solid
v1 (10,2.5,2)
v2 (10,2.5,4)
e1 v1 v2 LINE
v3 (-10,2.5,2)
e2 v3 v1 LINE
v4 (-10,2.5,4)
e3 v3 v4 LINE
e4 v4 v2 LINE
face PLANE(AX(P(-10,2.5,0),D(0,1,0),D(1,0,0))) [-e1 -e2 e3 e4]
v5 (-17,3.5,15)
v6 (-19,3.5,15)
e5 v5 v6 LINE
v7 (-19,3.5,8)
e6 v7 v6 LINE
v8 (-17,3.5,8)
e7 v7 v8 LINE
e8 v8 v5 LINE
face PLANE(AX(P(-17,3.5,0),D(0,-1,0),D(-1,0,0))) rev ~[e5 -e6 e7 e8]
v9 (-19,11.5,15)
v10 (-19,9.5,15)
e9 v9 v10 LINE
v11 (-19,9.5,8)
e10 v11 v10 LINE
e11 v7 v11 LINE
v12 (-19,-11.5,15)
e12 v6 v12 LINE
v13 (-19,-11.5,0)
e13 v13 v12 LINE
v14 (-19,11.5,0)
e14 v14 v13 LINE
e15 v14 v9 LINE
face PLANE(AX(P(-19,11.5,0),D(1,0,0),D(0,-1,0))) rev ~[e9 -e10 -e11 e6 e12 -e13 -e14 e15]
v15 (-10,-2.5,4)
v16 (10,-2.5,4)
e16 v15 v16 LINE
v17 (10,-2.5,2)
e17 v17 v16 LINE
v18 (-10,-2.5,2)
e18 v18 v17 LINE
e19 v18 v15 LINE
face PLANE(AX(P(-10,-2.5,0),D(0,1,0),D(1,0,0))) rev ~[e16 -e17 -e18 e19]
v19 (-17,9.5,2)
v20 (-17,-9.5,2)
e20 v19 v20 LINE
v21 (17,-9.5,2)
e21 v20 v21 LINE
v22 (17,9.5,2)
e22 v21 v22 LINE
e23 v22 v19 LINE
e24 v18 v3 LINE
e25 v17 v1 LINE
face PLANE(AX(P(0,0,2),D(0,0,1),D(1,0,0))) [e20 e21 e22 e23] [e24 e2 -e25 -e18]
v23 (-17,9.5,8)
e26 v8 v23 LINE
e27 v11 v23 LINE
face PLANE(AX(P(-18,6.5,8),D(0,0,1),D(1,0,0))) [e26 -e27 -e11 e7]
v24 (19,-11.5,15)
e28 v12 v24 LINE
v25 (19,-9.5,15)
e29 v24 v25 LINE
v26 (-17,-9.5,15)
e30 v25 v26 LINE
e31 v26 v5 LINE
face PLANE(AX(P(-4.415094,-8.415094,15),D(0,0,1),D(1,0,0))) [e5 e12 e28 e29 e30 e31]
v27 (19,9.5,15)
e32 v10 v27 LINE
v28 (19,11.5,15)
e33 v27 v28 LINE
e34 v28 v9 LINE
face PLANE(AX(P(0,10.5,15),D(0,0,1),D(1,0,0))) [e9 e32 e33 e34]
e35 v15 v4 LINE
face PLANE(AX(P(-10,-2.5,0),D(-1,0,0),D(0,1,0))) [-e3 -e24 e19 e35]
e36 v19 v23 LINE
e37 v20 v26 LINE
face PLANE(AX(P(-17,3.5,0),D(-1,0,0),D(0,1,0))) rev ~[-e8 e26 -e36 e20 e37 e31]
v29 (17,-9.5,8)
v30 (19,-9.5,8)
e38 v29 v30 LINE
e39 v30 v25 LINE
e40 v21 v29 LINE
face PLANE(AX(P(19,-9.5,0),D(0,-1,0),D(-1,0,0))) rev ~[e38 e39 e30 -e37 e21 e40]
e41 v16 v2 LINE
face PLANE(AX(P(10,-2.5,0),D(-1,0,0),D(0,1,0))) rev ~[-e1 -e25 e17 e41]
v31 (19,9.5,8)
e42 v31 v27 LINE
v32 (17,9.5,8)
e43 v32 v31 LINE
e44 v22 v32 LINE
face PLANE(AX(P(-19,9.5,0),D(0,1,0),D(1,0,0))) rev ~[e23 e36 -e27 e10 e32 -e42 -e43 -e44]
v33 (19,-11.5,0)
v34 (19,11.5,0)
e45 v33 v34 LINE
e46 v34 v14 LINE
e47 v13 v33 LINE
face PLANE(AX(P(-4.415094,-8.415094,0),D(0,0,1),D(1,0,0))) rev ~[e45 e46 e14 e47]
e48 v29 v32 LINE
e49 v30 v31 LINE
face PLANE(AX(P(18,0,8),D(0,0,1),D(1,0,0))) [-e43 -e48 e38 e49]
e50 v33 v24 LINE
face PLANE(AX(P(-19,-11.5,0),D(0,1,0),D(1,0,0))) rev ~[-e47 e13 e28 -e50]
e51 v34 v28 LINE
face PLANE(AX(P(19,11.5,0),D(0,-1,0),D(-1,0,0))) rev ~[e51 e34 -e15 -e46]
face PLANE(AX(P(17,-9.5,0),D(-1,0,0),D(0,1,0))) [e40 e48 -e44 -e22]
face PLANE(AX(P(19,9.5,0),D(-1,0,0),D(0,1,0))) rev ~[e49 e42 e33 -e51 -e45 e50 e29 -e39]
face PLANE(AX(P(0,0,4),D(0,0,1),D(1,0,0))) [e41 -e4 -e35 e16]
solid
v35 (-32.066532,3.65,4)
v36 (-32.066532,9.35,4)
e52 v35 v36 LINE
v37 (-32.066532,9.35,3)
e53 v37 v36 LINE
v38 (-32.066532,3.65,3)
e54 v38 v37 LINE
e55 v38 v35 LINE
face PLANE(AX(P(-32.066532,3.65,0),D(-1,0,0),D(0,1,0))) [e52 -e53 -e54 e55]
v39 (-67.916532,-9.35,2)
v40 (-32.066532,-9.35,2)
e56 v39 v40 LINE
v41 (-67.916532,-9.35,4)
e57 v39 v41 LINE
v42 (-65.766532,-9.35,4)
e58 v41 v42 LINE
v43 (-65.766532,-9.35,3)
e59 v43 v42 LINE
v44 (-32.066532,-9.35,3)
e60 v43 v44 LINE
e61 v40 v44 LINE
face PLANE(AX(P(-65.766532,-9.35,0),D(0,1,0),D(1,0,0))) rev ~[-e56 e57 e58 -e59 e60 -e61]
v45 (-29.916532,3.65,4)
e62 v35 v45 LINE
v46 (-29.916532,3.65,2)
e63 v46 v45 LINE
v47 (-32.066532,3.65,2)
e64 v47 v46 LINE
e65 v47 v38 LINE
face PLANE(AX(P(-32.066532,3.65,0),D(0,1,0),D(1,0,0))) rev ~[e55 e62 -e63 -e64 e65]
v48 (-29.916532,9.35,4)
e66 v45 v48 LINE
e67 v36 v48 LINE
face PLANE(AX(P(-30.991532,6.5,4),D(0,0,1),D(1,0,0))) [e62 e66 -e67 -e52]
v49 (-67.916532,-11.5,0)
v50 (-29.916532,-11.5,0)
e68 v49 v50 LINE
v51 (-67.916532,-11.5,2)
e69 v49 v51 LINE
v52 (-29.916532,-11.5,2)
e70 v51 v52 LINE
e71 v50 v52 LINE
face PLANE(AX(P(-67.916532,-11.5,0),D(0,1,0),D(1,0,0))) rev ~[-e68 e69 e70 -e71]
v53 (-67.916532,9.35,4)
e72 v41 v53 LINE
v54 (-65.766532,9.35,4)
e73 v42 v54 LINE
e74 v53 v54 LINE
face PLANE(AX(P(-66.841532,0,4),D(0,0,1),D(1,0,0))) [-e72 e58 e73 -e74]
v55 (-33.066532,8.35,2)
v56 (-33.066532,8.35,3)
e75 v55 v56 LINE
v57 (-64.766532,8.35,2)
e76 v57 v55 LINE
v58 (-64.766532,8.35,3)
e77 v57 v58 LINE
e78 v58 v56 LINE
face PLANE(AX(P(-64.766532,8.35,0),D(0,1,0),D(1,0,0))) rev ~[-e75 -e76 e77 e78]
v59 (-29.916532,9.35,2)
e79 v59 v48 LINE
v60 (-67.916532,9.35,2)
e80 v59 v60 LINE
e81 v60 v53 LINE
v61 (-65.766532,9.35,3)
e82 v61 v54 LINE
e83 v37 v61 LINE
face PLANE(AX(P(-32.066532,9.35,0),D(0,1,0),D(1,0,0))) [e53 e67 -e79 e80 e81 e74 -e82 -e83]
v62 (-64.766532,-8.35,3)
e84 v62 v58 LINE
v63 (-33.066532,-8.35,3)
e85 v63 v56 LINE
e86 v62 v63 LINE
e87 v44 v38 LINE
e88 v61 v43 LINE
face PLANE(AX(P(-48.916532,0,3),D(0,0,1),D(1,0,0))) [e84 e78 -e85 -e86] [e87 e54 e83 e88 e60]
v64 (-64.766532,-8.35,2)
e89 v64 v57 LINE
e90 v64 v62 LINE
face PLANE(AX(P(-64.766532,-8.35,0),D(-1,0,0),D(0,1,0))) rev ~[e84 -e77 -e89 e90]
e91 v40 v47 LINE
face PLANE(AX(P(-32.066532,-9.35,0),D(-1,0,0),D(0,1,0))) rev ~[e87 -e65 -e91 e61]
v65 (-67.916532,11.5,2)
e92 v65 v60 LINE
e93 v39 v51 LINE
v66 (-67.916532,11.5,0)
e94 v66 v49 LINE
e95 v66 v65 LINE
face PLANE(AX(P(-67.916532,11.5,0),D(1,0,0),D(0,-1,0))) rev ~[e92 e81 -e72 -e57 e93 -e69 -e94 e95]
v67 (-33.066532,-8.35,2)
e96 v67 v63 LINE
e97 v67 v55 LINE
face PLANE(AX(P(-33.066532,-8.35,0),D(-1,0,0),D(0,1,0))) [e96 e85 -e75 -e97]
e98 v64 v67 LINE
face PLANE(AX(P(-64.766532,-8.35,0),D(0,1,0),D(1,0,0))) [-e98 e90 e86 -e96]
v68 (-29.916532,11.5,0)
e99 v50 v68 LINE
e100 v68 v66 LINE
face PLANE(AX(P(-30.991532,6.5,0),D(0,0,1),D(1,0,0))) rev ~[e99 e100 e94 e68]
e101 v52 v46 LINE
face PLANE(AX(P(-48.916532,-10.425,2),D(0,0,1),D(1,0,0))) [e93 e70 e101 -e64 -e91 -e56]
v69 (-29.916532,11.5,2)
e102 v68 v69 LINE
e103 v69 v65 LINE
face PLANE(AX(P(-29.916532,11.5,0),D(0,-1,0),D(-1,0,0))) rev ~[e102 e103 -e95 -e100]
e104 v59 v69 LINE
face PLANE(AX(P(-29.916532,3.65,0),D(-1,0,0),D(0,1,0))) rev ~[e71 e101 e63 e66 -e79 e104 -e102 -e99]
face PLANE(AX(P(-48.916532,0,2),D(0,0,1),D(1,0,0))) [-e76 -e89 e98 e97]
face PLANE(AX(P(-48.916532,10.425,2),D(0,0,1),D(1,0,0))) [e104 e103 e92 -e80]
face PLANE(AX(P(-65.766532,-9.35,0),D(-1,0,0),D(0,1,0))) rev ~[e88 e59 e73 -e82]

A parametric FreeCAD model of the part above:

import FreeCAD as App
import Part
import Sketcher

V = App.Vector
Q = App.Units.Quantity


def add_polygon(sketch, points):
    """Adds a closed chain of lines whose ends are joined by coincident constraints."""
    first, n = sketch.GeometryCount, len(points)
    for a, b in zip(points, points[1:] + points[:1]):
        sketch.addGeometry(Part.LineSegment(App.Vector(*a, 0), App.Vector(*b, 0)), False)
    for i in range(n):
        sketch.addConstraint(Sketcher.Constraint("Coincident", first + i, 2, first + (i + 1) % n, 1))

doc = App.newDocument("Part")
body = doc.addObject("PartDesign::Body", "Body")

# Sketch on XY plane
sketch1 = doc.addObject("Sketcher::SketchObject", "Sketch")
body.addObject(sketch1)
sketch1.AttachmentSupport = (doc.XY_Plane, [""])
sketch1.MapMode = "FlatFace"
add_polygon(sketch1, [(-17, -10), (17, -10), (17, 10), (-17, 10)])  # lines 0-3
add_polygon(sketch1, [(10, -2), (-10, -2), (-10, 2), (10, 2)])  # lines 4-7
sketch1.addConstraint([
    Sketcher.Constraint("Horizontal", 0),
    Sketcher.Constraint("Vertical", 1),
    Sketcher.Constraint("Horizontal", 2),
    Sketcher.Constraint("Vertical", 3),
    Sketcher.Constraint("Horizontal", 4),
    Sketcher.Constraint("Vertical", 5),
    Sketcher.Constraint("Horizontal", 6),
    Sketcher.Constraint("Vertical", 7),
    Sketcher.Constraint("Symmetric", 0, 2, 2, 2, -1, 1),
    Sketcher.Constraint("Symmetric", 4, 2, 6, 2, -1, 1),
    Sketcher.Constraint("DistanceX", 0, 1, 0, 2, Q("34 mm")),
    Sketcher.Constraint("DistanceX", 4, 2, 4, 1, Q("20 mm")),
    Sketcher.Constraint("DistanceY", 1, 1, 1, 2, Q("19 mm")),
    Sketcher.Constraint("DistanceY", 5, 1, 5, 2, Q("5 mm")),
])
pad1 = doc.addObject("PartDesign::Pad", "Pad")
body.addObject(pad1)
pad1.Profile = sketch1
pad1.Length = 2

# Sketch on XY plane
sketch2 = doc.addObject("Sketcher::SketchObject", "Sketch001")
body.addObject(sketch2)
sketch2.AttachmentSupport = (doc.XY_Plane, [""])
sketch2.MapMode = "FlatFace"
add_polygon(sketch2, [(-10, 2), (-10, -2), (10, -2), (10, 2)])  # lines 0-3
sketch2.addConstraint([
    Sketcher.Constraint("Vertical", 0),
    Sketcher.Constraint("Horizontal", 1),
    Sketcher.Constraint("Vertical", 2),
    Sketcher.Constraint("Horizontal", 3),
    Sketcher.Constraint("Symmetric", 0, 2, 2, 2, -1, 1),
    Sketcher.Constraint("DistanceX", 1, 1, 1, 2, Q("20 mm")),
    Sketcher.Constraint("DistanceY", 0, 2, 0, 1, Q("5 mm")),
])
pad2 = doc.addObject("PartDesign::Pad", "Pad001")
body.addObject(pad2)
pad2.Profile = sketch2
pad2.Length = 4

# Sketch on XY plane
sketch3 = doc.addObject("Sketcher::SketchObject", "Sketch002")
body.addObject(sketch3)
sketch3.AttachmentSupport = (doc.XY_Plane, [""])
sketch3.MapMode = "FlatFace"
add_polygon(sketch3, [(19, -9.5), (-17, -9.5), (-17, 3.5), (-19, 3.5), (-19, -11.5), (19, -11.5)])  # lines 0-5
add_polygon(sketch3, [(19, 9.5), (19, 11.5), (-19, 11.5), (-19, 9.5)])  # lines 6-9
sketch3.addConstraint([
    Sketcher.Constraint("Horizontal", 0),
    Sketcher.Constraint("Vertical", 1),
    Sketcher.Constraint("Horizontal", 2),
    Sketcher.Constraint("Vertical", 3),
    Sketcher.Constraint("Horizontal", 4),
    Sketcher.Constraint("Vertical", 5),
    Sketcher.Constraint("Vertical", 6),
    Sketcher.Constraint("Horizontal", 7),
    Sketcher.Constraint("Vertical", 8),
    Sketcher.Constraint("Horizontal", 9),
    Sketcher.Constraint("Symmetric", 3, 2, 6, 2, -1, 1),
    Sketcher.Constraint("Symmetric", 5, 2, 8, 2, -1, 1),
    Sketcher.Constraint("Vertical", 5, 2, 6, 2),
    Sketcher.Constraint("Equal", 2, 5),
    Sketcher.Constraint("DistanceX", 0, 2, 0, 1, Q("36 mm")),
    Sketcher.Constraint("DistanceX", 2, 2, 2, 1, Q("2 mm")),
    Sketcher.Constraint("DistanceY", 1, 1, 1, 2, Q("13 mm")),
    Sketcher.Constraint("DistanceY", 5, 2, 6, 2, Q("21 mm")),
])
pad3 = doc.addObject("PartDesign::Pad", "Pad002")
body.addObject(pad3)
pad3.Profile = sketch3
pad3.Length = 15

# Sketch on XY plane
sketch4 = doc.addObject("Sketcher::SketchObject", "Sketch003")
body.addObject(sketch4)
sketch4.AttachmentSupport = (doc.XY_Plane, [""])
sketch4.MapMode = "FlatFace"
add_polygon(sketch4, [(17, 9.5), (17, -9.5), (19, -9.5), (19, 9.5)])  # lines 0-3
add_polygon(sketch4, [(-19, 9.5), (-19, 3.5), (-17, 3.5), (-17, 9.5)])  # lines 4-7
sketch4.addConstraint([
    Sketcher.Constraint("Vertical", 0),
    Sketcher.Constraint("Horizontal", 1),
    Sketcher.Constraint("Vertical", 2),
    Sketcher.Constraint("Horizontal", 3),
    Sketcher.Constraint("Vertical", 4),
    Sketcher.Constraint("Horizontal", 5),
    Sketcher.Constraint("Vertical", 6),
    Sketcher.Constraint("Horizontal", 7),
    Sketcher.Constraint("Symmetric", 0, 2, 6, 2, -1, 1),
    Sketcher.Constraint("Symmetric", 2, 2, 7, 2, -2),
    Sketcher.Constraint("DistanceX", 1, 1, 1, 2, Q("2 mm")),
    Sketcher.Constraint("DistanceY", 0, 2, 0, 1, Q("19 mm")),
    Sketcher.Constraint("DistanceY", 4, 2, 4, 1, Q("6 mm")),
    Sketcher.Constraint("DistanceX", -1, 1, 0, 2, Q("17 mm")),
])
pad4 = doc.addObject("PartDesign::Pad", "Pad003")
body.addObject(pad4)
pad4.Profile = sketch4
pad4.Length = 8
body2 = doc.addObject("PartDesign::Body", "Body001")
body2.AllowCompound = True

# Sketch on XY plane
sketch5 = doc.addObject("Sketcher::SketchObject", "Sketch004")
body2.addObject(sketch5)
sketch5.AttachmentSupport = (doc.getObject("XY_Plane001"), [""])
sketch5.MapMode = "FlatFace"
add_polygon(sketch5, [(-67.9, 9.3), (-29.9, 9.3), (-29.9, 11.5), (-67.9, 11.5)])  # lines 0-3
add_polygon(sketch5, [(-32.1, -9.3), (-67.9, -9.3), (-67.9, -11.5), (-29.9, -11.5), (-29.9, 3.6), (-32.1, 3.6)])  # lines 4-9
add_polygon(sketch5, [(-64.8, 8.3), (-64.8, -8.3), (-33.1, -8.3), (-33.1, 8.3)])  # lines 10-13
sketch5.addConstraint([
    Sketcher.Constraint("Horizontal", 0),
    Sketcher.Constraint("Vertical", 1),
    Sketcher.Constraint("Horizontal", 2),
    Sketcher.Constraint("Vertical", 3),
    Sketcher.Constraint("Horizontal", 4),
    Sketcher.Constraint("Vertical", 5),
    Sketcher.Constraint("Horizontal", 6),
    Sketcher.Constraint("Vertical", 7),
    Sketcher.Constraint("Horizontal", 8),
    Sketcher.Constraint("Vertical", 9),
    Sketcher.Constraint("Vertical", 10),
    Sketcher.Constraint("Horizontal", 11),
    Sketcher.Constraint("Vertical", 12),
    Sketcher.Constraint("Horizontal", 13),
    Sketcher.Constraint("Symmetric", 3, 2, 4, 2, -1),
    Sketcher.Constraint("Symmetric", 1, 2, 6, 2, -1),
    Sketcher.Constraint("Equal", 8, 1),
    Sketcher.Constraint("DistanceX", 0, 1, 0, 2, Q("38 mm")),
    Sketcher.Constraint("DistanceY", 9, 2, 9, 1, Q("13 mm")),
    Sketcher.Constraint("DistanceX", 11, 1, 11, 2, Q("31.7 mm")),
    Sketcher.Constraint("DistanceY", 10, 2, 10, 1, Q("16.7 mm")),
    Sketcher.Constraint("DistanceY", 5, 2, 2, 2, Q("23 mm")),
    Sketcher.Constraint("DistanceY", 4, 2, 10, 2, Q("1 mm")),
    Sketcher.Constraint("DistanceX", 11, 2, 9, 2, Q("1 mm")),
    Sketcher.Constraint("DistanceY", 12, 2, 0, 2, Q("1 mm")),
    Sketcher.Constraint("DistanceX", 0, 2, -1, 1, Q("29.916532 mm")),
])
pad5 = doc.addObject("PartDesign::Pad", "Pad004")
body2.addObject(pad5)
pad5.Profile = sketch5
pad5.Length = 2

# Sketch on XY plane
sketch6 = doc.addObject("Sketcher::SketchObject", "Sketch005")
body2.addObject(sketch6)
sketch6.AttachmentSupport = (doc.getObject("XY_Plane001"), [""])
sketch6.MapMode = "FlatFace"
add_polygon(sketch6, [(-66, -9), (-32, -9), (-32, 9), (-66, 9)])  # lines 0-3
add_polygon(sketch6, [(-33, -8), (-65, -8), (-65, 8), (-33, 8)])  # lines 4-7
sketch6.addConstraint([
    Sketcher.Constraint("Horizontal", 0),
    Sketcher.Constraint("Vertical", 1),
    Sketcher.Constraint("Horizontal", 2),
    Sketcher.Constraint("Vertical", 3),
    Sketcher.Constraint("Horizontal", 4),
    Sketcher.Constraint("Vertical", 5),
    Sketcher.Constraint("Horizontal", 6),
    Sketcher.Constraint("Vertical", 7),
    Sketcher.Constraint("DistanceX", 0, 1, 0, 2, Q("33.7 mm")),
    Sketcher.Constraint("DistanceX", 4, 2, 4, 1, Q("31.7 mm")),
    Sketcher.Constraint("DistanceY", 1, 1, 1, 2, Q("18.7 mm")),
    Sketcher.Constraint("DistanceY", 5, 1, 5, 2, Q("16.7 mm")),
    Sketcher.Constraint("DistanceX", 3, 2, 4, 2, Q("1 mm")),
    Sketcher.Constraint("DistanceY", 3, 2, 4, 2, Q("1 mm")),
    Sketcher.Constraint("DistanceY", 0, 2, -1, 1, Q("9.35 mm")),
    Sketcher.Constraint("DistanceX", 2, 2, -1, 1, Q("65.766532 mm")),
])
pad6 = doc.addObject("PartDesign::Pad", "Pad005")
body2.addObject(pad6)
pad6.Profile = sketch6
pad6.Length = 3

# Sketch on XY plane
sketch7 = doc.addObject("Sketcher::SketchObject", "Sketch006")
body2.addObject(sketch7)
sketch7.AttachmentSupport = (doc.getObject("XY_Plane001"), [""])
sketch7.MapMode = "FlatFace"
add_polygon(sketch7, [(-32.1, 9.3), (-32.1, 3.6), (-29.9, 3.6), (-29.9, 9.3)])  # lines 0-3
add_polygon(sketch7, [(-67.9, 9.3), (-67.9, -9.3), (-65.8, -9.3), (-65.8, 9.3)])  # lines 4-7
sketch7.addConstraint([
    Sketcher.Constraint("Vertical", 0),
    Sketcher.Constraint("Horizontal", 1),
    Sketcher.Constraint("Vertical", 2),
    Sketcher.Constraint("Horizontal", 3),
    Sketcher.Constraint("Vertical", 4),
    Sketcher.Constraint("Horizontal", 5),
    Sketcher.Constraint("Vertical", 6),
    Sketcher.Constraint("Horizontal", 7),
    Sketcher.Constraint("Horizontal", 3, 2, 6, 2),
    Sketcher.Constraint("Equal", 3, 5),
    Sketcher.Constraint("DistanceY", 0, 2, 0, 1, Q("5.7 mm")),
    Sketcher.Constraint("DistanceY", 4, 2, 4, 1, Q("18.7 mm")),
    Sketcher.Constraint("DistanceX", 4, 2, 1, 2, Q("38 mm")),
    Sketcher.Constraint("DistanceX", 1, 1, 1, 2, Q("2.15 mm")),
    Sketcher.Constraint("DistanceY", -1, 1, 0, 2, Q("3.65 mm")),
    Sketcher.Constraint("DistanceX", 1, 2, -1, 1, Q("29.916532 mm")),
])
pad7 = doc.addObject("PartDesign::Pad", "Pad006")
body2.addObject(pad7)
pad7.Profile = sketch7
pad7.Length = 4

doc.recompute()
